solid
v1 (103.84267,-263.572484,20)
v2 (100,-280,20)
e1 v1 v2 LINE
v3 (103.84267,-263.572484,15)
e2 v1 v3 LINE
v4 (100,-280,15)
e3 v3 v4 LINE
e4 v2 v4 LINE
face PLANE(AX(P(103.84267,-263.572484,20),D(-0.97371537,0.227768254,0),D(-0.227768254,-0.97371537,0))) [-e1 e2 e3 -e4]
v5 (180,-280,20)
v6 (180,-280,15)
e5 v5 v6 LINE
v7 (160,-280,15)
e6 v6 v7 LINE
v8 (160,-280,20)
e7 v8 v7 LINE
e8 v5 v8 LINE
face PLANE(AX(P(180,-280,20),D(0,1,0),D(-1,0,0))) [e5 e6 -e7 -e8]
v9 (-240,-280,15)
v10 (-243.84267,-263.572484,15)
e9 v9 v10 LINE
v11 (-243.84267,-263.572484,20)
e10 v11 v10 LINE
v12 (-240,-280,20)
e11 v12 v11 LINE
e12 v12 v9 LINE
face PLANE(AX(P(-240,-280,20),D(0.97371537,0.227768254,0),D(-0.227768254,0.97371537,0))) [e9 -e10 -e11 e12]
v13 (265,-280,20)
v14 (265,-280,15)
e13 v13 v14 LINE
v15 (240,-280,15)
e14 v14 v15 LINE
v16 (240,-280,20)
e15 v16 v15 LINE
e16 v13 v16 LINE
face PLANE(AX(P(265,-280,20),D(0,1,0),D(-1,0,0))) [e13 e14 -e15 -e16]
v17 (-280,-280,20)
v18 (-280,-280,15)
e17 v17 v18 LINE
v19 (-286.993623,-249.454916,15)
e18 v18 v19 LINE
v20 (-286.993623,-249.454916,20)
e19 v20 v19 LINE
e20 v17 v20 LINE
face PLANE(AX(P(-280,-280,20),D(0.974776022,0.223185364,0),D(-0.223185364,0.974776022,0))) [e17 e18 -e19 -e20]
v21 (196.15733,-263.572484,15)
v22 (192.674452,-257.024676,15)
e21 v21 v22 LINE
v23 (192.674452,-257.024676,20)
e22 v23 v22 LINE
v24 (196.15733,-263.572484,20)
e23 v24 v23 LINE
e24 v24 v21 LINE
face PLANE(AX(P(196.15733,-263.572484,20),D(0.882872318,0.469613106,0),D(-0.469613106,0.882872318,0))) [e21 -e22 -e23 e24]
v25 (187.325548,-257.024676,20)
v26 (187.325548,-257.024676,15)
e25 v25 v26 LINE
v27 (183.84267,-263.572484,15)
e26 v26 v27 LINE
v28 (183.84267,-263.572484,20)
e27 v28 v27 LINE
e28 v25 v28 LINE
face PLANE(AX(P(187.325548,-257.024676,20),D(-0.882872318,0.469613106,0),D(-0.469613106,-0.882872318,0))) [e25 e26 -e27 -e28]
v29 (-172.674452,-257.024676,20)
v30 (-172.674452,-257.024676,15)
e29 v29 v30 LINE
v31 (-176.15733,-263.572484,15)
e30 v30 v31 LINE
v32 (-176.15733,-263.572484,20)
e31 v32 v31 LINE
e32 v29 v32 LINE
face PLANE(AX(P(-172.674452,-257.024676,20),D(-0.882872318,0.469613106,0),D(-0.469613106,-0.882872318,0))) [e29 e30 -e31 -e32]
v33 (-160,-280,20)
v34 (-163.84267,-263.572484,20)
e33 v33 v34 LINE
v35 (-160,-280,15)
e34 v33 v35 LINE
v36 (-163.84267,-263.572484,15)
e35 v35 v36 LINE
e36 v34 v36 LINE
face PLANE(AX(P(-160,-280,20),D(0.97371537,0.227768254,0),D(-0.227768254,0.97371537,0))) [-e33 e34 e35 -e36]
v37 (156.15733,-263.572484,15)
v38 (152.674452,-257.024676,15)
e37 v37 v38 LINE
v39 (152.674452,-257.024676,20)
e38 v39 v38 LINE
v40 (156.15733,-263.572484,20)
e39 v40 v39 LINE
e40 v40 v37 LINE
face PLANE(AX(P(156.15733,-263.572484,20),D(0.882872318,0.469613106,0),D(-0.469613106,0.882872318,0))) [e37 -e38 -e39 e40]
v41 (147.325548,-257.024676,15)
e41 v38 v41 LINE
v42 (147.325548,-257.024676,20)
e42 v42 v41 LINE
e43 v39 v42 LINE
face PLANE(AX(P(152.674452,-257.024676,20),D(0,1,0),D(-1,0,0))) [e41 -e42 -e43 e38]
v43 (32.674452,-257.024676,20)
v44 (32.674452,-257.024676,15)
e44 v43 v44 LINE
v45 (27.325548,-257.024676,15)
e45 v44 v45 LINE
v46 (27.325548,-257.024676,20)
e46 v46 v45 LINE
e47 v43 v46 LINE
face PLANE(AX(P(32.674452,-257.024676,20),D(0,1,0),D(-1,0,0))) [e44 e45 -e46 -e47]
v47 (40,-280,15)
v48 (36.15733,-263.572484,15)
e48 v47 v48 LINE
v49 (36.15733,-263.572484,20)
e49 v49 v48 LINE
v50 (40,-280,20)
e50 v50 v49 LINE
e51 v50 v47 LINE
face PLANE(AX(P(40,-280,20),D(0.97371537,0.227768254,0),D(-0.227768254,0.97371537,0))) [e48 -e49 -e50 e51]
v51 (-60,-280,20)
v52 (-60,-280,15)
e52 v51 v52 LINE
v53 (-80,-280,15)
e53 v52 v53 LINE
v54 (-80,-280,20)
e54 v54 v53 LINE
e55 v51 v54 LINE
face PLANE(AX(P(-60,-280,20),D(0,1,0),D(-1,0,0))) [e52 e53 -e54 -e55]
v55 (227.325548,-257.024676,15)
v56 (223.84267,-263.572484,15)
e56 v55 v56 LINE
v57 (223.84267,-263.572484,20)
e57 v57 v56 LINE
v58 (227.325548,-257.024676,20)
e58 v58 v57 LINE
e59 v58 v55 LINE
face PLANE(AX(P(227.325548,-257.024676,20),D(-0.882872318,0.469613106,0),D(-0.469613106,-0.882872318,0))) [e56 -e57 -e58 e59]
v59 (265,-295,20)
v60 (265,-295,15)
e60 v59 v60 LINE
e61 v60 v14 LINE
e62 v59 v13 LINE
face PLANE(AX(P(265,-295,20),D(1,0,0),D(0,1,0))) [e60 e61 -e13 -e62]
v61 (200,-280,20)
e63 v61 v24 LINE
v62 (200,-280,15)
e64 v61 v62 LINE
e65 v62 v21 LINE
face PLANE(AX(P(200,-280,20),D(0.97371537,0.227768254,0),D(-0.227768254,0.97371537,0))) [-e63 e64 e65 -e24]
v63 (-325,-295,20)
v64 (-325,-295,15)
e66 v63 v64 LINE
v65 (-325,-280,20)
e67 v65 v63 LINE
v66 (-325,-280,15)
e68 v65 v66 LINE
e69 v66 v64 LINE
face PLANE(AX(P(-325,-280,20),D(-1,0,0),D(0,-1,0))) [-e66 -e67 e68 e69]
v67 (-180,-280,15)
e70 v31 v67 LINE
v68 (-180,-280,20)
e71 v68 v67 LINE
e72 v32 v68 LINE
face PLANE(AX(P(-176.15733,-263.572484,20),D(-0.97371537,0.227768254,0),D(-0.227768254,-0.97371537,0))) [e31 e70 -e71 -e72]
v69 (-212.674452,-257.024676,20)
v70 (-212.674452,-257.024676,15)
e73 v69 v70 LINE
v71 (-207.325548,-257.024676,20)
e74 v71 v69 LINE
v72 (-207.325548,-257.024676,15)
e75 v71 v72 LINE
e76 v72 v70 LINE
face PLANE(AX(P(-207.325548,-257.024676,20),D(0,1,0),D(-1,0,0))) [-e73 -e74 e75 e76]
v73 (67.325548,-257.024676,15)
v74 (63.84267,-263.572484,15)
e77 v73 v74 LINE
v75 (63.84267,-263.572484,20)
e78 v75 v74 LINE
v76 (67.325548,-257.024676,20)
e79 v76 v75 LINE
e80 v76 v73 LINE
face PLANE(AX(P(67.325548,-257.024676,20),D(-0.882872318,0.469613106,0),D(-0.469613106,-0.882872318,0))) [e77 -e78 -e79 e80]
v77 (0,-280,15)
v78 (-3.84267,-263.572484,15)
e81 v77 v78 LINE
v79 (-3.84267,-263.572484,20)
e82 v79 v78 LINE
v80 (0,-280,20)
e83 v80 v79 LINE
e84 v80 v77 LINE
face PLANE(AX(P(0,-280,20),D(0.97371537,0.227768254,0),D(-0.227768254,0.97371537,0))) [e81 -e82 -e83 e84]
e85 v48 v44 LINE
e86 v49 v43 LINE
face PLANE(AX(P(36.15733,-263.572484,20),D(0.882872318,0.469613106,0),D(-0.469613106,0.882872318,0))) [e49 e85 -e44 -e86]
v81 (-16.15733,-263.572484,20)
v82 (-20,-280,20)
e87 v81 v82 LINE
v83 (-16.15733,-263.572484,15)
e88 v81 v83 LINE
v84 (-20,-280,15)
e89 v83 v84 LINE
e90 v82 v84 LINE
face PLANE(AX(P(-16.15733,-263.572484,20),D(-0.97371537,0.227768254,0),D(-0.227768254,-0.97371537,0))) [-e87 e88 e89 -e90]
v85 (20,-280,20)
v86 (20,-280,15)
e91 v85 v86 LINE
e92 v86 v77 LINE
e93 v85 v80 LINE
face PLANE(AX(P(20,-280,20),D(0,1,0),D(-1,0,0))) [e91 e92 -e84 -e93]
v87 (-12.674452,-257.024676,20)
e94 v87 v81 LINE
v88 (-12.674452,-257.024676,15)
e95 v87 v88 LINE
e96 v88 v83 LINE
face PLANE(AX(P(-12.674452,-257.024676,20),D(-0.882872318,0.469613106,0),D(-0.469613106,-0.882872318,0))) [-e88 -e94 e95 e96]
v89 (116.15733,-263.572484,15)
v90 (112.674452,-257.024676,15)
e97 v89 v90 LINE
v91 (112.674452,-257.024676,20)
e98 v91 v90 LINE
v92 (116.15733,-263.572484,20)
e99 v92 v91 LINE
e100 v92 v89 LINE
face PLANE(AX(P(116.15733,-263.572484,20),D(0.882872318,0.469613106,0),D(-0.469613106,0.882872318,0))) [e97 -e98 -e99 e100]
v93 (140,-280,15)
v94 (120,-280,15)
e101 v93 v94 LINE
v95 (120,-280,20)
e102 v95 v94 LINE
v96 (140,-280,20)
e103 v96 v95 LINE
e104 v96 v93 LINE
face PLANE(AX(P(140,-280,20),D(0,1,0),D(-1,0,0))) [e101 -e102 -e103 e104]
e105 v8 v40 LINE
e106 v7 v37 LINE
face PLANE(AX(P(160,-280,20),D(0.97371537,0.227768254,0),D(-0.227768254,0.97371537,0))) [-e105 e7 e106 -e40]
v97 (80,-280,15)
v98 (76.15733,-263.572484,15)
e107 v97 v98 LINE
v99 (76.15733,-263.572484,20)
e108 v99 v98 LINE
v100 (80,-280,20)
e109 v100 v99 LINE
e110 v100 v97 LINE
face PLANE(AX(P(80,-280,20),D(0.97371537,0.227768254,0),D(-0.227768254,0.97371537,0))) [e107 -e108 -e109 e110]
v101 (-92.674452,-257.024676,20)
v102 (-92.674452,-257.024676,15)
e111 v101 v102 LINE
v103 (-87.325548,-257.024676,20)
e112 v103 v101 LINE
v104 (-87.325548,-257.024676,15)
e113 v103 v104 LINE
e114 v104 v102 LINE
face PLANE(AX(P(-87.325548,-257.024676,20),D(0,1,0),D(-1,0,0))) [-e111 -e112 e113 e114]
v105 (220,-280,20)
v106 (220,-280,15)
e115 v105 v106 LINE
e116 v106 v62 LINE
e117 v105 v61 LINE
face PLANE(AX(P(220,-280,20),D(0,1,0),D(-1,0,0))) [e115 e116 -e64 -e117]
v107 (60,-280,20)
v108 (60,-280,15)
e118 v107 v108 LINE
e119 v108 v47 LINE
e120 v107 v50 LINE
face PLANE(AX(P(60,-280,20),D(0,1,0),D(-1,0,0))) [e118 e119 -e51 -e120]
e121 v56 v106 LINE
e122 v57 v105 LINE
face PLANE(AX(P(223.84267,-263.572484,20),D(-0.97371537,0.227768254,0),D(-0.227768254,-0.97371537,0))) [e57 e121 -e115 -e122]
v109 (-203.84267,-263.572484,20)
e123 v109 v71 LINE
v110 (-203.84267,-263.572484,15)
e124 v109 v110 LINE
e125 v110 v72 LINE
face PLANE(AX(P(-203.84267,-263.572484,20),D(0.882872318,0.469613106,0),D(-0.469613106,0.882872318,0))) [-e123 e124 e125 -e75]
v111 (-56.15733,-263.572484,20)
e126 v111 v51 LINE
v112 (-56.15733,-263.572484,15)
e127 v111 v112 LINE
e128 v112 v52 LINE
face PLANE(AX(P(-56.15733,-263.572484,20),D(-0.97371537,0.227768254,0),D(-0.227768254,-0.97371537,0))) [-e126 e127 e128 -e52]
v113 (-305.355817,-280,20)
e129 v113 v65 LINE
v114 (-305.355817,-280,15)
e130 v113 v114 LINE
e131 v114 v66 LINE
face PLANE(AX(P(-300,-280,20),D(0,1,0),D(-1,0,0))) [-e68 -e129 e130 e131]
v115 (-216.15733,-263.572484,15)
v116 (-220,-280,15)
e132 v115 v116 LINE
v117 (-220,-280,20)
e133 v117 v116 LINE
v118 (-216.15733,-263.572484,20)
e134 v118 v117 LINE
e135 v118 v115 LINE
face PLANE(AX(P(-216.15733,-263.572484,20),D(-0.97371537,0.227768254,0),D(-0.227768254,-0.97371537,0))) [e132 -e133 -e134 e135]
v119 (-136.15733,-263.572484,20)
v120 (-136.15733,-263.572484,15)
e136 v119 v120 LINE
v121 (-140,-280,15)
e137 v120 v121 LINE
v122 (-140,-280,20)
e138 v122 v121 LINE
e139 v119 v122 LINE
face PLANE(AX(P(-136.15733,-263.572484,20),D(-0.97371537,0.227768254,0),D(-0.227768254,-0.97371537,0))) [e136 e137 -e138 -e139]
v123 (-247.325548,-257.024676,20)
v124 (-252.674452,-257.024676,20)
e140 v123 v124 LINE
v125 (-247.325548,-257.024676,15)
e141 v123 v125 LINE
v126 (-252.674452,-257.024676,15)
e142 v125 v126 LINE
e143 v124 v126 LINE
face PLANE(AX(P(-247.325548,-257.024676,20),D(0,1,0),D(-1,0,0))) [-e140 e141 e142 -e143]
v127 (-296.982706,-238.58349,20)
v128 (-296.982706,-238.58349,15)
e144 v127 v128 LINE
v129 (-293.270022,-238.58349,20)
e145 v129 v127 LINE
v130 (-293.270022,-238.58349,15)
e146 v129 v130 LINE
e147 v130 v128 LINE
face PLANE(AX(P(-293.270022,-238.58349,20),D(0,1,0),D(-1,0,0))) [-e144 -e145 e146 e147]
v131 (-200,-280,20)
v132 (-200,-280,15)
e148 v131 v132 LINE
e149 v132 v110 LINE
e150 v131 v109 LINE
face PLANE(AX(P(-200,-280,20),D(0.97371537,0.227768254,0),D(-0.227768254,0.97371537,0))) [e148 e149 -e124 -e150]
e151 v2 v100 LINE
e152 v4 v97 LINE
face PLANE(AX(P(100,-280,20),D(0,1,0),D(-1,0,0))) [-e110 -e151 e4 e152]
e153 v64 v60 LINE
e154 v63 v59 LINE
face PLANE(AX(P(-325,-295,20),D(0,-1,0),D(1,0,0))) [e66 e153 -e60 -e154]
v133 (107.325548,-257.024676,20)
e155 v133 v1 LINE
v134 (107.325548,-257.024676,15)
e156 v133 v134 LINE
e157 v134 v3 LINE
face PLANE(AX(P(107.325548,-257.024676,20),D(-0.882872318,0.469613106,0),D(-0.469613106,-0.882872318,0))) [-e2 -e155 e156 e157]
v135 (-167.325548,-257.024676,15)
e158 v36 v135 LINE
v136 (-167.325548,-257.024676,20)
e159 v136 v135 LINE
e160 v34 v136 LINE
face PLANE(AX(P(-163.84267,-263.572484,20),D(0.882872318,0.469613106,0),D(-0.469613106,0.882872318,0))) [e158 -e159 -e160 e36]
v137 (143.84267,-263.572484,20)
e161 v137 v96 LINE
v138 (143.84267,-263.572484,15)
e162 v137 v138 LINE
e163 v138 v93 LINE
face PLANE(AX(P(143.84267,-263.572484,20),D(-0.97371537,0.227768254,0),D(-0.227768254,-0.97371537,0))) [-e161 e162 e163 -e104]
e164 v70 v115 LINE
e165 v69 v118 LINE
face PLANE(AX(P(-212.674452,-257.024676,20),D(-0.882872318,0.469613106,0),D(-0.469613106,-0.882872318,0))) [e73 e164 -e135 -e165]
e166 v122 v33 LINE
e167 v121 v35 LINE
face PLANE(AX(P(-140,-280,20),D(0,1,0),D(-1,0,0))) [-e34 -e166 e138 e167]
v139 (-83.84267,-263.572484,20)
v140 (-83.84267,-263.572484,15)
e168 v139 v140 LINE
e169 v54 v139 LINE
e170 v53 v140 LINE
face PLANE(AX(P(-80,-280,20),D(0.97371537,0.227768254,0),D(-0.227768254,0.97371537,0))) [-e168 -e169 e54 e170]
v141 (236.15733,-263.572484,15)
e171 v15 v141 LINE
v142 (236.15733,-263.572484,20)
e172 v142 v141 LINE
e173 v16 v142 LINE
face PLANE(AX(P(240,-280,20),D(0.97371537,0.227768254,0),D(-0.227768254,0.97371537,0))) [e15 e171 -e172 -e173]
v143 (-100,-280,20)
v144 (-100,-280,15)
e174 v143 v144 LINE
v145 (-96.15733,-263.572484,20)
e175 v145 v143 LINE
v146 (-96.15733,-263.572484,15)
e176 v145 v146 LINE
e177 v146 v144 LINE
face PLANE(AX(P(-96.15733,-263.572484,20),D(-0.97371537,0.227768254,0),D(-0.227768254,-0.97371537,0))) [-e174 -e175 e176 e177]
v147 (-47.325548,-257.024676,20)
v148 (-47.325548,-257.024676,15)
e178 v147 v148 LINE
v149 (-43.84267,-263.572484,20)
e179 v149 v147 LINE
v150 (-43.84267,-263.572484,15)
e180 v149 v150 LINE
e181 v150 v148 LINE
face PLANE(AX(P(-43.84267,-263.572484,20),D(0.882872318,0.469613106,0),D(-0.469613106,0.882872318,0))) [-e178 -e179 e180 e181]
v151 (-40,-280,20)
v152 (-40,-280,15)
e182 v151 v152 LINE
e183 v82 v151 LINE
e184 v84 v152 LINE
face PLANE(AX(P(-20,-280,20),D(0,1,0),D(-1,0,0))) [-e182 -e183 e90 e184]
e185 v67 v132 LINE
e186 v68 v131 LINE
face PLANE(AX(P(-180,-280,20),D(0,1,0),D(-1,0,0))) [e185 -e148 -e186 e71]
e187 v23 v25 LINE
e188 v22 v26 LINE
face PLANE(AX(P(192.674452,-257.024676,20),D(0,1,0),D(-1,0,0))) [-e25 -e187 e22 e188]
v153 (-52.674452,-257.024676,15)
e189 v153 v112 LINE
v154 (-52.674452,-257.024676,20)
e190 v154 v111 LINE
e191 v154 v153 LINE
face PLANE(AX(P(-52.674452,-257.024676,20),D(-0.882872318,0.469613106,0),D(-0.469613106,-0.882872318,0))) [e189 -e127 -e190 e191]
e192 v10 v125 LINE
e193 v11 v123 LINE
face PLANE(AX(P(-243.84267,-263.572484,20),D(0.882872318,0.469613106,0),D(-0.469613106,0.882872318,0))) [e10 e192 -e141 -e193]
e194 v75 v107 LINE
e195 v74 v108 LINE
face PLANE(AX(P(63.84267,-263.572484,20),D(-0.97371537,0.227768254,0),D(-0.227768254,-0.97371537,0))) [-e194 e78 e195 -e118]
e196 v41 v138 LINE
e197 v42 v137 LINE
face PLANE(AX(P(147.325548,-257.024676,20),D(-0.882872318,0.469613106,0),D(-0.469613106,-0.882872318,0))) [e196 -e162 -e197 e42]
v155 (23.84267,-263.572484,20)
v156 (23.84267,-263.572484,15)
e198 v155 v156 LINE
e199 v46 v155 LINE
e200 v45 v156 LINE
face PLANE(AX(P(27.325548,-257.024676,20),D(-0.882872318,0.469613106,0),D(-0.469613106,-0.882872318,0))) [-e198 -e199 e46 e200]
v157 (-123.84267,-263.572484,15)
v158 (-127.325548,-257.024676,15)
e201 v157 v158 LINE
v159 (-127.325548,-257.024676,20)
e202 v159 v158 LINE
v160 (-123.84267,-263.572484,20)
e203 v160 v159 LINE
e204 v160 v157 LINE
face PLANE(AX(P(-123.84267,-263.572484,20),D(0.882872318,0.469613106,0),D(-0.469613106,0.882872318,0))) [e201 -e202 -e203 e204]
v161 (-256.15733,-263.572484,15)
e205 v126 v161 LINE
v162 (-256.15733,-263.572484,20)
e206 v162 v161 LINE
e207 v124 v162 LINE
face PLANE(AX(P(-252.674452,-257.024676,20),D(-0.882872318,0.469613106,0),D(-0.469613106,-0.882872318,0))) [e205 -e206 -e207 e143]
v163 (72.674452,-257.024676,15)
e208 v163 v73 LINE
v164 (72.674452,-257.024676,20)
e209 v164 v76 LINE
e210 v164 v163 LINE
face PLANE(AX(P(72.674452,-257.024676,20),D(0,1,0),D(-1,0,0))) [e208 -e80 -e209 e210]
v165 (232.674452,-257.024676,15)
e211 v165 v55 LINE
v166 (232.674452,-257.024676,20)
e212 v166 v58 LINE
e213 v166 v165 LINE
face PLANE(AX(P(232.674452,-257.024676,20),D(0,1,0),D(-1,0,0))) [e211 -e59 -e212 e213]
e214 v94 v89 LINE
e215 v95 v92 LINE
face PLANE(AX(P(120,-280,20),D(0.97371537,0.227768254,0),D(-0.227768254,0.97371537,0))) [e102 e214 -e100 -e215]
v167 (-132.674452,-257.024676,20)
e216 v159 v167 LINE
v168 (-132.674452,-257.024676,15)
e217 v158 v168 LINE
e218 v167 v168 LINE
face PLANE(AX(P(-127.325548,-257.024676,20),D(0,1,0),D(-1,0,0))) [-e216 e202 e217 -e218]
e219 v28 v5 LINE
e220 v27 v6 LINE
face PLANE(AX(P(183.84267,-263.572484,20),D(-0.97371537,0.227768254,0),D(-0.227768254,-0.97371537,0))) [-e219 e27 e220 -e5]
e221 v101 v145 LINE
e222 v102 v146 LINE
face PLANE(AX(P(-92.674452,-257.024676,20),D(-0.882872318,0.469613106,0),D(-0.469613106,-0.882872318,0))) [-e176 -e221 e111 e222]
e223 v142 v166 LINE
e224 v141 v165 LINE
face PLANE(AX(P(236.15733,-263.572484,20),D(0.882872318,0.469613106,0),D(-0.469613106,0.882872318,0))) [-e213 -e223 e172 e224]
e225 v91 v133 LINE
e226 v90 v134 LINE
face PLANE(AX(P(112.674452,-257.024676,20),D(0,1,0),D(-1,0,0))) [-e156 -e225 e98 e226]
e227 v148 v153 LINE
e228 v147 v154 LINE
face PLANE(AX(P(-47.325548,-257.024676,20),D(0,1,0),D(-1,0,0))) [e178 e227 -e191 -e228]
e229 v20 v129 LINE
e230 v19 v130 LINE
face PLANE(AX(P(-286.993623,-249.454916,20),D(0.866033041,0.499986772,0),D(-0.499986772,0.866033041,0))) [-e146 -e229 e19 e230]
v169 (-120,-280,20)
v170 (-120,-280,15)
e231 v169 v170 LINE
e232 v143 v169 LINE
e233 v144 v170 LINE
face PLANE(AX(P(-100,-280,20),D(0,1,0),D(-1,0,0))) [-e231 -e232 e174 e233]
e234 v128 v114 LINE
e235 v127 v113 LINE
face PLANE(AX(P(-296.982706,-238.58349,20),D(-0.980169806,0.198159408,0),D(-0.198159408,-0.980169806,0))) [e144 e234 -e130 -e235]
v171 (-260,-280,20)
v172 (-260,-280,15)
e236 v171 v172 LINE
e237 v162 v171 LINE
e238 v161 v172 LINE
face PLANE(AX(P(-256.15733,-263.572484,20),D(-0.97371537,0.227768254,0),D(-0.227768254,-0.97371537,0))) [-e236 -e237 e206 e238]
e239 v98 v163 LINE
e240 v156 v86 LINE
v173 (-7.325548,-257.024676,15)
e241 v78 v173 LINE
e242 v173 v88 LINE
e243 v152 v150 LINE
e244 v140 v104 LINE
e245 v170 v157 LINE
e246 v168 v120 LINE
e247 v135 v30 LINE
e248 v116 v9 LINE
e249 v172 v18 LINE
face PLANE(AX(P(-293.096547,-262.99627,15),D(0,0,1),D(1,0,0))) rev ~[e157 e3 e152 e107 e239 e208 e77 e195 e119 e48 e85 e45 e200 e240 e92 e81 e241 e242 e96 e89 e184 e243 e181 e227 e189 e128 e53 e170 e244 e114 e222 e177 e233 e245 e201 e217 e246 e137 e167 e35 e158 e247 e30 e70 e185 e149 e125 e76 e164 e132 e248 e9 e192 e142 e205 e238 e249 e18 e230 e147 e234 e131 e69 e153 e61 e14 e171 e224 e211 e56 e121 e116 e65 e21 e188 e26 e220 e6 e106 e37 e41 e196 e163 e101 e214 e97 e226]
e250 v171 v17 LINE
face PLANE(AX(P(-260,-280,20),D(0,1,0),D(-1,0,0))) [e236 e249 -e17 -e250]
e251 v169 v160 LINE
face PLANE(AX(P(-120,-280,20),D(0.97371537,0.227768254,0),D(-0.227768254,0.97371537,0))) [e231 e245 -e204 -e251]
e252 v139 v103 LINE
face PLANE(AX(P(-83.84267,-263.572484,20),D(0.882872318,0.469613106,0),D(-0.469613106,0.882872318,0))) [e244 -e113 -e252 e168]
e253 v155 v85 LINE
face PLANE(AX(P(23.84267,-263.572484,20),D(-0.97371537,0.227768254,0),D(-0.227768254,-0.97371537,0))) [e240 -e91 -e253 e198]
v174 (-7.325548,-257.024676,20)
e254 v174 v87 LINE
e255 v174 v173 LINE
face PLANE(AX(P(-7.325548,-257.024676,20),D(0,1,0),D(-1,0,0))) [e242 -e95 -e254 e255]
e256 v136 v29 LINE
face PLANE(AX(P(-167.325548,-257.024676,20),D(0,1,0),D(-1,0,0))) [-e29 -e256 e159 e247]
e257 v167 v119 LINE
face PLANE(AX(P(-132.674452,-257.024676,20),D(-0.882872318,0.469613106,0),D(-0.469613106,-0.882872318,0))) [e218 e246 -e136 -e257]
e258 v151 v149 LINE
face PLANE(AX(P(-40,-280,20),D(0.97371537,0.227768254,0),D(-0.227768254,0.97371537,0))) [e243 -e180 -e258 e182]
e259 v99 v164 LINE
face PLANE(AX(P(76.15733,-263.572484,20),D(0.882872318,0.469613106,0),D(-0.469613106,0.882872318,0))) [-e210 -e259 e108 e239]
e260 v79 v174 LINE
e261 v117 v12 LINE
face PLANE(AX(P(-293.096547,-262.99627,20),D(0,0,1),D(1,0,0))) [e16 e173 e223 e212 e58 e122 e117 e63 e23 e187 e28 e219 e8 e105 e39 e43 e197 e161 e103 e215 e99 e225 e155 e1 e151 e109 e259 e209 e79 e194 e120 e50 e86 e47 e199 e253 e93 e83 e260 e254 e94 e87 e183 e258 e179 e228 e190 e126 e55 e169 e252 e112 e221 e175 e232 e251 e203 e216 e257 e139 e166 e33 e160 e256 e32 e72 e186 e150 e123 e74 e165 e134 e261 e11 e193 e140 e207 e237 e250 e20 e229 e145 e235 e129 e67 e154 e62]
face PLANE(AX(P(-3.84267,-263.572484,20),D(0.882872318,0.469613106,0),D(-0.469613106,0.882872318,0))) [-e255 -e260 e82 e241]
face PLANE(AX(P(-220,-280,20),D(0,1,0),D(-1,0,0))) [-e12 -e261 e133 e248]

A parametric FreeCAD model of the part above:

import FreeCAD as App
import Part
import Sketcher
from FreeCAD import Vector
Q = App.Units.Quantity


def add_polygon(sketch, points):
    """Adds a closed chain of lines whose ends are joined by coincident constraints."""
    first, n = sketch.GeometryCount, len(points)
    for a, b in zip(points, points[1:] + points[:1]):
        sketch.addGeometry(Part.LineSegment(App.Vector(*a, 0), App.Vector(*b, 0)), False)
    for i in range(n):
        sketch.addConstraint(Sketcher.Constraint("Coincident", first + i, 2, first + (i + 1) % n, 1))

doc = App.newDocument("Part")
body = doc.addObject("PartDesign::Body", "Body")

sketch1 = body.newObject("Sketcher::SketchObject", "Sketch")
sketch1.AttachmentSupport = (doc.getObject("XY_Plane"), [""])
sketch1.MapMode = "FlatFace"
add_polygon(sketch1, [(-375, -280), (-375, -330), (375, -330), (375, -280)])
sketch1.addConstraint(Sketcher.Constraint("Vertical", 0))
sketch1.addConstraint(Sketcher.Constraint("Horizontal", 1))
sketch1.addConstraint(Sketcher.Constraint("Vertical", 2))
sketch1.addConstraint(Sketcher.Constraint("Horizontal", 3))
sketch1.addConstraint(Sketcher.Constraint("DistanceX", 1, 1, 1, 2, Q("750 mm")))
sketch1.addConstraint(Sketcher.Constraint("DistanceY", 0, 2, 0, 1, Q("50 mm")))
sketch1.addConstraint(Sketcher.Constraint("DistanceX", 0, 2, -1, 1, Q("375 mm")))
sketch1.addConstraint(Sketcher.Constraint("DistanceY", 0, 2, -1, 1, Q("330 mm")))
pad1 = body.newObject("PartDesign::Pad", "Pad")
pad1.Profile = sketch1
pad1.Length = 20
body2 = doc.addObject("PartDesign::Body", "Body001")

sketch2 = body2.newObject("Sketcher::SketchObject", "Sketch001")
sketch2.AttachmentSupport = (doc.getObject("XY_Plane001"), [""])
sketch2.MapMode = "FlatFace"
add_polygon(sketch2, [(-375, 330), (-375, 280), (375, 280), (375, 330)])
sketch2.addConstraint(Sketcher.Constraint("Vertical", 0))
sketch2.addConstraint(Sketcher.Constraint("Horizontal", 1))
sketch2.addConstraint(Sketcher.Constraint("Vertical", 2))
sketch2.addConstraint(Sketcher.Constraint("Horizontal", 3))
sketch2.addConstraint(Sketcher.Constraint("DistanceX", 1, 1, 1, 2, Q("750 mm")))
sketch2.addConstraint(Sketcher.Constraint("DistanceY", 0, 2, 0, 1, Q("50 mm")))
sketch2.addConstraint(Sketcher.Constraint("DistanceX", 0, 2, -1, 1, Q("375 mm")))
sketch2.addConstraint(Sketcher.Constraint("DistanceY", -1, 1, 0, 2, Q("280 mm")))
pad2 = body2.newObject("PartDesign::Pad", "Pad001")
pad2.Profile = sketch2
pad2.Length = 20
body3 = doc.addObject("PartDesign::Body", "Body002")

sketch3 = body3.newObject("Sketcher::SketchObject", "Sketch002")
sketch3.AttachmentSupport = (doc.getObject("XY_Plane002"), [""])
sketch3.MapMode = "FlatFace"
sketch3.AttachmentOffset = App.Placement(Vector(0, 0, 20), App.Rotation())
add_polygon(sketch3, [(-362.106252, 330), (-362.106252, -330), (-312.106252, -330), (-312.106252, 330)])
sketch3.addConstraint(Sketcher.Constraint("Vertical", 0))
sketch3.addConstraint(Sketcher.Constraint("Horizontal", 1))
sketch3.addConstraint(Sketcher.Constraint("Vertical", 2))
sketch3.addConstraint(Sketcher.Constraint("Horizontal", 3))
sketch3.addConstraint(Sketcher.Constraint("DistanceX", 1, 1, 1, 2, Q("50 mm")))
sketch3.addConstraint(Sketcher.Constraint("DistanceY", 0, 2, 0, 1, Q("660 mm")))
sketch3.addConstraint(Sketcher.Constraint("DistanceY", 0, 2, -1, 1, Q("330 mm")))
sketch3.addConstraint(Sketcher.Constraint("DistanceX", 0, 2, -1, 1, Q("362.106252 mm")))
pad3 = body3.newObject("PartDesign::Pad", "Pad002")
pad3.Profile = sketch3
pad3.Length = 10
body4 = doc.addObject("PartDesign::Body", "Body003")

sketch4 = body4.newObject("Sketcher::SketchObject", "Sketch003")
sketch4.AttachmentSupport = (doc.getObject("XY_Plane003"), [""])
sketch4.MapMode = "FlatFace"
sketch4.AttachmentOffset = App.Placement(Vector(0, 0, 20), App.Rotation())
add_polygon(sketch4, [(312.106252, 330), (312.106252, -330), (362.106252, -330), (362.106252, 330)])
sketch4.addConstraint(Sketcher.Constraint("Vertical", 0))
sketch4.addConstraint(Sketcher.Constraint("Horizontal", 1))
sketch4.addConstraint(Sketcher.Constraint("Vertical", 2))
sketch4.addConstraint(Sketcher.Constraint("Horizontal", 3))
sketch4.addConstraint(Sketcher.Constraint("DistanceX", 1, 1, 1, 2, Q("50 mm")))
sketch4.addConstraint(Sketcher.Constraint("DistanceY", 0, 2, 0, 1, Q("660 mm")))
sketch4.addConstraint(Sketcher.Constraint("DistanceY", 0, 2, -1, 1, Q("330 mm")))
sketch4.addConstraint(Sketcher.Constraint("DistanceX", -1, 1, 0, 2, Q("312.106252 mm")))
pad4 = body4.newObject("PartDesign::Pad", "Pad003")
pad4.Profile = sketch4
pad4.Length = 10
body5 = doc.addObject("PartDesign::Body", "Body004")

sketch5 = body5.newObject("Sketcher::SketchObject", "Sketch004")
sketch5.AttachmentSupport = (doc.getObject("XY_Plane004"), [""])
sketch5.MapMode = "FlatFace"
sketch5.AttachmentOffset = App.Placement(Vector(0, 0, 20), App.Rotation())
add_polygon(sketch5, [(-155.332723, 330), (-155.332723, -330), (-105.332723, -330), (-105.332723, 330)])
sketch5.addConstraint(Sketcher.Constraint("Vertical", 0))
sketch5.addConstraint(Sketcher.Constraint("Horizontal", 1))
sketch5.addConstraint(Sketcher.Constraint("Vertical", 2))
sketch5.addConstraint(Sketcher.Constraint("Horizontal", 3))
sketch5.addConstraint(Sketcher.Constraint("DistanceX", 1, 1, 1, 2, Q("50 mm")))
sketch5.addConstraint(Sketcher.Constraint("DistanceY", 0, 2, 0, 1, Q("660 mm")))
sketch5.addConstraint(Sketcher.Constraint("DistanceY", 0, 2, -1, 1, Q("330 mm")))
sketch5.addConstraint(Sketcher.Constraint("DistanceX", 0, 2, -1, 1, Q("155.332723 mm")))
pad5 = body5.newObject("PartDesign::Pad", "Pad004")
pad5.Profile = sketch5
pad5.Length = 10
body6 = doc.addObject("PartDesign::Body", "Body005")

sketch6 = body6.newObject("Sketcher::SketchObject", "Sketch005")
sketch6.AttachmentSupport = (doc.getObject("XY_Plane005"), [""])
sketch6.MapMode = "FlatFace"
sketch6.AttachmentOffset = App.Placement(Vector(0, 0, 20), App.Rotation())
add_polygon(sketch6, [(105.332723, 330), (105.332723, -330), (155.332723, -330), (155.332723, 330)])
sketch6.addConstraint(Sketcher.Constraint("Vertical", 0))
sketch6.addConstraint(Sketcher.Constraint("Horizontal", 1))
sketch6.addConstraint(Sketcher.Constraint("Vertical", 2))
sketch6.addConstraint(Sketcher.Constraint("Horizontal", 3))
sketch6.addConstraint(Sketcher.Constraint("DistanceX", 1, 1, 1, 2, Q("50 mm")))
sketch6.addConstraint(Sketcher.Constraint("DistanceY", 0, 2, 0, 1, Q("660 mm")))
sketch6.addConstraint(Sketcher.Constraint("DistanceY", 0, 2, -1, 1, Q("330 mm")))
sketch6.addConstraint(Sketcher.Constraint("DistanceX", -1, 1, 0, 2, Q("105.332723 mm")))
pad6 = body6.newObject("PartDesign::Pad", "Pad005")
pad6.Profile = sketch6
pad6.Length = 10
body7 = doc.addObject("PartDesign::Body", "Body006")

sketch7 = body7.newObject("Sketcher::SketchObject", "Sketch006")
sketch7.AttachmentSupport = (doc.getObject("XY_Plane006"), [""])
sketch7.MapMode = "FlatFace"
sketch7.AttachmentOffset = App.Placement(Vector(0, 0, 20), App.Rotation())
add_polygon(sketch7, [(-296.15733, -263.572484), (-300, -280), (-325, -280), (-325, -295), (265, -295), (265, -280), (240, -280), (236.15733, -263.572484), (232.674452, -257.024676), (227.325548, -257.024676), (223.84267, -263.572484), (220, -280), (200, -280), (196.15733, -263.572484), (192.674452, -257.024676), (187.325548, -257.024676), (183.84267, -263.572484), (180, -280), (160, -280), (156.15733, -263.572484), (152.674452, -257.024676), (147.325548, -257.024676), (143.84267, -263.572484), (140, -280), (120, -280), (116.15733, -263.572484), (112.674452, -257.024676), (107.325548, -257.024676), (103.84267, -263.572484), (100, -280), (80, -280), (76.15733, -263.572484), (72.674452, -257.024676), (67.325548, -257.024676), (63.84267, -263.572484), (60, -280), (40, -280), (36.15733, -263.572484), (32.674452, -257.024676), (27.325548, -257.024676), (23.84267, -263.572484), (20, -280), (0, -280), (-3.84267, -263.572484), (-7.325548, -257.024676), (-12.674452, -257.024676), (-16.15733, -263.572484), (-20, -280), (-40, -280), (-43.84267, -263.572484), (-47.325548, -257.024676), (-52.674452, -257.024676), (-56.15733, -263.572484), (-60, -280), (-80, -280), (-83.84267, -263.572484), (-87.325548, -257.024676), (-92.674452, -257.024676), (-96.15733, -263.572484), (-100, -280), (-120, -280), (-123.84267, -263.572484), (-127.325548, -257.024676), (-132.674452, -257.024676), (-136.15733, -263.572484), (-140, -280), (-160, -280), (-163.84267, -263.572484), (-167.325548, -257.024676), (-172.674452, -257.024676), (-176.15733, -263.572484), (-180, -280), (-200, -280), (-203.84267, -263.572484), (-207.325548, -257.024676), (-212.674452, -257.024676), (-216.15733, -263.572484), (-220, -280), (-240, -280), (-243.84267, -263.572484), (-247.325548, -257.024676), (-252.674452, -257.024676), (-256.15733, -263.572484), (-260, -280), (-280, -280), (-283.84267, -263.572484), (-287.325548, -257.024676), (-292.674452, -257.024676)])
sketch7.addConstraint(Sketcher.Constraint("Horizontal", 1))
sketch7.addConstraint(Sketcher.Constraint("Vertical", 2))
sketch7.addConstraint(Sketcher.Constraint("Horizontal", 3))
sketch7.addConstraint(Sketcher.Constraint("Vertical", 4))
sketch7.addConstraint(Sketcher.Constraint("Horizontal", 5))
sketch7.addConstraint(Sketcher.Constraint("Horizontal", 8))
sketch7.addConstraint(Sketcher.Constraint("Horizontal", 11))
sketch7.addConstraint(Sketcher.Constraint("Horizontal", 14))
sketch7.addConstraint(Sketcher.Constraint("Horizontal", 17))
sketch7.addConstraint(Sketcher.Constraint("Horizontal", 20))
sketch7.addConstraint(Sketcher.Constraint("Horizontal", 23))
sketch7.addConstraint(Sketcher.Constraint("Horizontal", 26))
sketch7.addConstraint(Sketcher.Constraint("Horizontal", 29))
sketch7.addConstraint(Sketcher.Constraint("Horizontal", 32))
sketch7.addConstraint(Sketcher.Constraint("Horizontal", 35))
sketch7.addConstraint(Sketcher.Constraint("Horizontal", 38))
sketch7.addConstraint(Sketcher.Constraint("Horizontal", 41))
sketch7.addConstraint(Sketcher.Constraint("Horizontal", 44))
sketch7.addConstraint(Sketcher.Constraint("Horizontal", 47))
sketch7.addConstraint(Sketcher.Constraint("Horizontal", 50))
sketch7.addConstraint(Sketcher.Constraint("Horizontal", 53))
sketch7.addConstraint(Sketcher.Constraint("Horizontal", 56))
sketch7.addConstraint(Sketcher.Constraint("Horizontal", 59))
sketch7.addConstraint(Sketcher.Constraint("Horizontal", 62))
sketch7.addConstraint(Sketcher.Constraint("Horizontal", 65))
sketch7.addConstraint(Sketcher.Constraint("Horizontal", 68))
sketch7.addConstraint(Sketcher.Constraint("Horizontal", 71))
sketch7.addConstraint(Sketcher.Constraint("Horizontal", 74))
sketch7.addConstraint(Sketcher.Constraint("Horizontal", 77))
sketch7.addConstraint(Sketcher.Constraint("Horizontal", 80))
sketch7.addConstraint(Sketcher.Constraint("Horizontal", 83))
sketch7.addConstraint(Sketcher.Constraint("Horizontal", 86))
sketch7.addConstraint(Sketcher.Constraint("Symmetric", 40, 2, 46, 2, -2))
sketch7.addConstraint(Sketcher.Constraint("Symmetric", 35, 2, 47, 2, -2))
sketch7.addConstraint(Sketcher.Constraint("Symmetric", 34, 2, 52, 2, -2))
sketch7.addConstraint(Sketcher.Constraint("Symmetric", 29, 2, 53, 2, -2))
sketch7.addConstraint(Sketcher.Constraint("Symmetric", 28, 2, 58, 2, -2))
sketch7.addConstraint(Sketcher.Constraint("Symmetric", 23, 2, 59, 2, -2))
sketch7.addConstraint(Sketcher.Constraint("Symmetric", 22, 2, 64, 2, -2))
sketch7.addConstraint(Sketcher.Constraint("Symmetric", 17, 2, 65, 2, -2))
sketch7.addConstraint(Sketcher.Constraint("Symmetric", 16, 2, 70, 2, -2))
sketch7.addConstraint(Sketcher.Constraint("Symmetric", 11, 2, 71, 2, -2))
sketch7.addConstraint(Sketcher.Constraint("Symmetric", 10, 2, 76, 2, -2))
sketch7.addConstraint(Sketcher.Constraint("Symmetric", 5, 2, 77, 2, -2))
sketch7.addConstraint(Sketcher.Constraint("PointOnObject", 41, 2, -2))
sketch7.addConstraint(Sketcher.Constraint("Parallel", 0, 10))
sketch7.addConstraint(Sketcher.Constraint("Parallel", 6, 12))
sketch7.addConstraint(Sketcher.Constraint("Parallel", 7, 13))
sketch7.addConstraint(Sketcher.Constraint("Parallel", 9, 15))
sketch7.addConstraint(Sketcher.Constraint("Parallel", 10, 16))
sketch7.addConstraint(Sketcher.Constraint("Parallel", 12, 18))
sketch7.addConstraint(Sketcher.Constraint("Parallel", 13, 19))
sketch7.addConstraint(Sketcher.Constraint("Parallel", 15, 21))
sketch7.addConstraint(Sketcher.Constraint("Parallel", 16, 22))
sketch7.addConstraint(Sketcher.Constraint("Parallel", 18, 24))
sketch7.addConstraint(Sketcher.Constraint("Parallel", 19, 25))
sketch7.addConstraint(Sketcher.Constraint("Parallel", 21, 27))
sketch7.addConstraint(Sketcher.Constraint("Parallel", 22, 28))
sketch7.addConstraint(Sketcher.Constraint("Parallel", 24, 30))
sketch7.addConstraint(Sketcher.Constraint("Parallel", 25, 31))
sketch7.addConstraint(Sketcher.Constraint("Parallel", 27, 33))
sketch7.addConstraint(Sketcher.Constraint("Parallel", 28, 34))
sketch7.addConstraint(Sketcher.Constraint("Parallel", 30, 36))
sketch7.addConstraint(Sketcher.Constraint("Parallel", 31, 37))
sketch7.addConstraint(Sketcher.Constraint("Parallel", 33, 39))
sketch7.addConstraint(Sketcher.Constraint("Parallel", 34, 40))
sketch7.addConstraint(Sketcher.Constraint("Parallel", 36, 42))
sketch7.addConstraint(Sketcher.Constraint("Parallel", 37, 43))
sketch7.addConstraint(Sketcher.Constraint("Parallel", 39, 45))
sketch7.addConstraint(Sketcher.Constraint("Parallel", 40, 46))
sketch7.addConstraint(Sketcher.Constraint("Parallel", 42, 48))
sketch7.addConstraint(Sketcher.Constraint("Parallel", 43, 49))
sketch7.addConstraint(Sketcher.Constraint("Parallel", 45, 51))
sketch7.addConstraint(Sketcher.Constraint("Parallel", 46, 52))
sketch7.addConstraint(Sketcher.Constraint("Parallel", 48, 54))
sketch7.addConstraint(Sketcher.Constraint("Parallel", 49, 55))
sketch7.addConstraint(Sketcher.Constraint("Parallel", 51, 57))
sketch7.addConstraint(Sketcher.Constraint("Parallel", 52, 58))
sketch7.addConstraint(Sketcher.Constraint("Parallel", 54, 60))
sketch7.addConstraint(Sketcher.Constraint("Parallel", 55, 61))
sketch7.addConstraint(Sketcher.Constraint("Parallel", 57, 63))
sketch7.addConstraint(Sketcher.Constraint("Parallel", 58, 64))
sketch7.addConstraint(Sketcher.Constraint("Parallel", 60, 66))
sketch7.addConstraint(Sketcher.Constraint("Parallel", 61, 67))
sketch7.addConstraint(Sketcher.Constraint("Parallel", 63, 69))
sketch7.addConstraint(Sketcher.Constraint("Parallel", 64, 70))
sketch7.addConstraint(Sketcher.Constraint("Parallel", 66, 72))
sketch7.addConstraint(Sketcher.Constraint("Parallel", 67, 73))
sketch7.addConstraint(Sketcher.Constraint("Parallel", 69, 75))
sketch7.addConstraint(Sketcher.Constraint("Parallel", 70, 76))
sketch7.addConstraint(Sketcher.Constraint("Parallel", 72, 78))
sketch7.addConstraint(Sketcher.Constraint("Parallel", 73, 79))
sketch7.addConstraint(Sketcher.Constraint("Parallel", 75, 81))
sketch7.addConstraint(Sketcher.Constraint("Parallel", 76, 82))
sketch7.addConstraint(Sketcher.Constraint("Parallel", 78, 84))
sketch7.addConstraint(Sketcher.Constraint("Parallel", 79, 85))
sketch7.addConstraint(Sketcher.Constraint("Parallel", 81, 87))
sketch7.addConstraint(Sketcher.Constraint("Horizontal", 1, 2, 4, 2))
sketch7.addConstraint(Sketcher.Constraint("Horizontal", 6, 2, 9, 2))
sketch7.addConstraint(Sketcher.Constraint("Horizontal", 9, 2, 12, 2))
sketch7.addConstraint(Sketcher.Constraint("Horizontal", 8, 2, 13, 2))
sketch7.addConstraint(Sketcher.Constraint("Horizontal", 12, 2, 15, 2))
sketch7.addConstraint(Sketcher.Constraint("Horizontal", 15, 2, 18, 2))
sketch7.addConstraint(Sketcher.Constraint("Horizontal", 14, 2, 19, 2))
sketch7.addConstraint(Sketcher.Constraint("Horizontal", 18, 2, 21, 2))
sketch7.addConstraint(Sketcher.Constraint("Horizontal", 21, 2, 24, 2))
sketch7.addConstraint(Sketcher.Constraint("Horizontal", 20, 2, 25, 2))
sketch7.addConstraint(Sketcher.Constraint("Horizontal", 24, 2, 27, 2))
sketch7.addConstraint(Sketcher.Constraint("Horizontal", 27, 2, 30, 2))
sketch7.addConstraint(Sketcher.Constraint("Horizontal", 26, 2, 31, 2))
sketch7.addConstraint(Sketcher.Constraint("Horizontal", 30, 2, 33, 2))
sketch7.addConstraint(Sketcher.Constraint("Horizontal", 33, 2, 36, 2))
sketch7.addConstraint(Sketcher.Constraint("Horizontal", 32, 2, 37, 2))
sketch7.addConstraint(Sketcher.Constraint("Horizontal", 36, 2, 39, 2))
sketch7.addConstraint(Sketcher.Constraint("Horizontal", 39, 2, 42, 2))
sketch7.addConstraint(Sketcher.Constraint("Horizontal", 38, 2, 43, 2))
sketch7.addConstraint(Sketcher.Constraint("Horizontal", 42, 2, 45, 2))
sketch7.addConstraint(Sketcher.Constraint("Horizontal", 45, 2, 48, 2))
sketch7.addConstraint(Sketcher.Constraint("Horizontal", 44, 2, 49, 2))
sketch7.addConstraint(Sketcher.Constraint("Horizontal", 48, 2, 51, 2))
sketch7.addConstraint(Sketcher.Constraint("Horizontal", 51, 2, 54, 2))
sketch7.addConstraint(Sketcher.Constraint("Horizontal", 50, 2, 55, 2))
sketch7.addConstraint(Sketcher.Constraint("Horizontal", 54, 2, 57, 2))
sketch7.addConstraint(Sketcher.Constraint("Horizontal", 57, 2, 60, 2))
sketch7.addConstraint(Sketcher.Constraint("Horizontal", 56, 2, 61, 2))
sketch7.addConstraint(Sketcher.Constraint("Horizontal", 60, 2, 63, 2))
sketch7.addConstraint(Sketcher.Constraint("Horizontal", 63, 2, 66, 2))
sketch7.addConstraint(Sketcher.Constraint("Horizontal", 62, 2, 67, 2))
sketch7.addConstraint(Sketcher.Constraint("Horizontal", 66, 2, 69, 2))
sketch7.addConstraint(Sketcher.Constraint("Horizontal", 69, 2, 72, 2))
sketch7.addConstraint(Sketcher.Constraint("Horizontal", 68, 2, 73, 2))
sketch7.addConstraint(Sketcher.Constraint("Horizontal", 72, 2, 75, 2))
sketch7.addConstraint(Sketcher.Constraint("Horizontal", 75, 2, 78, 2))
sketch7.addConstraint(Sketcher.Constraint("Horizontal", 74, 2, 79, 2))
sketch7.addConstraint(Sketcher.Constraint("Horizontal", 78, 2, 81, 2))
sketch7.addConstraint(Sketcher.Constraint("Horizontal", 77, 2, 82, 2))
sketch7.addConstraint(Sketcher.Constraint("Horizontal", 81, 2, 84, 2))
sketch7.addConstraint(Sketcher.Constraint("Horizontal", 80, 2, 85, 2))
sketch7.addConstraint(Sketcher.Constraint("Horizontal", 84, 2, 87, 2))
sketch7.addConstraint(Sketcher.Constraint("Equal", 1, 5))
sketch7.addConstraint(Sketcher.Constraint("Equal", 8, 14))
sketch7.addConstraint(Sketcher.Constraint("Equal", 11, 17))
sketch7.addConstraint(Sketcher.Constraint("Equal", 14, 20))
sketch7.addConstraint(Sketcher.Constraint("Equal", 17, 23))
sketch7.addConstraint(Sketcher.Constraint("Equal", 20, 26))
sketch7.addConstraint(Sketcher.Constraint("Equal", 23, 29))
sketch7.addConstraint(Sketcher.Constraint("Equal", 26, 32))
sketch7.addConstraint(Sketcher.Constraint("Equal", 29, 35))
sketch7.addConstraint(Sketcher.Constraint("Equal", 32, 38))
sketch7.addConstraint(Sketcher.Constraint("Equal", 35, 41))
sketch7.addConstraint(Sketcher.Constraint("Equal", 38, 44))
sketch7.addConstraint(Sketcher.Constraint("Equal", 74, 80))
sketch7.addConstraint(Sketcher.Constraint("Equal", 77, 83))
sketch7.addConstraint(Sketcher.Constraint("Equal", 80, 86))
sketch7.addConstraint(Sketcher.Constraint("Equal", 0, 6))
sketch7.addConstraint(Sketcher.Constraint("Equal", 7, 9))
sketch7.addConstraint(Sketcher.Constraint("DistanceX", 1, 2, 1, 1, Q("25 mm")))
sketch7.addConstraint(Sketcher.Constraint("DistanceX", 3, 1, 3, 2, Q("590 mm")))
sketch7.addConstraint(Sketcher.Constraint("DistanceY", 2, 2, 2, 1, Q("15 mm")))
sketch7.addConstraint(Sketcher.Constraint("DistanceY", 0, 2, -1, 1, Q("280 mm")))
sketch7.addConstraint(Sketcher.Constraint("DistanceX", 8, 2, 8, 1, Q("5.348904 mm")))
sketch7.addConstraint(Sketcher.Constraint("DistanceX", -1, 1, 6, 2, Q("236.15733 mm")))
sketch7.addConstraint(Sketcher.Constraint("Distance", 0, Q("16.870963 mm")))
sketch7.addConstraint(Sketcher.Constraint("Distance", 7, Q("7.416484 mm")))
pad7 = body7.newObject("PartDesign::Pad", "Pad006")
pad7.Profile = sketch7
pad7.Length = 5
pad7.Reversed = True

sketch8 = body7.newObject("Sketcher::SketchObject", "Sketch007")
sketch8.AttachmentSupport = (doc.getObject("XY_Plane006"), [""])
sketch8.MapMode = "FlatFace"
sketch8.AttachmentOffset = App.Placement(Vector(0, 0, 20), App.Rotation())
add_polygon(sketch8, [(-280, -280), (-286.993623, -249.454916), (-293.270022, -238.58349), (-296.982706, -238.58349), (-305.355817, -280)])
sketch8.addConstraint(Sketcher.Constraint("Horizontal", 2))
sketch8.addConstraint(Sketcher.Constraint("Horizontal", 4))
sketch8.addConstraint(Sketcher.Constraint("DistanceY", 3, 2, -1, 1, Q("280 mm")))
sketch8.addConstraint(Sketcher.Constraint("DistanceX", 4, 2, -1, 1, Q("280 mm")))
sketch8.addConstraint(Sketcher.Constraint("DistanceX", 1, 2, 0, 2, Q("6.276399 mm")))
sketch8.addConstraint(Sketcher.Constraint("Distance", 0, Q("31.33549 mm")))
sketch8.addConstraint(Sketcher.Constraint("Distance", 1, Q("12.55313 mm")))
sketch8.addConstraint(Sketcher.Constraint("DistanceX", 2, 2, 2, 1, Q("3.712684 mm")))
sketch8.addConstraint(Sketcher.Constraint("DistanceX", 4, 1, 4, 2, Q("25.355817 mm")))
sketch8.addConstraint(Sketcher.Constraint("DistanceX", 1, 2, -1, 1, Q("293.270022 mm")))
pad8 = body7.newObject("PartDesign::Pad", "Pad007")
pad8.Profile = sketch8
pad8.Length = 5
pad8.Reversed = True
body8 = doc.addObject("PartDesign::Body", "Body007")

sketch9 = body8.newObject("Sketcher::SketchObject", "Sketch008")
sketch9.AttachmentSupport = (doc.getObject("XY_Plane007"), [""])
sketch9.MapMode = "FlatFace"
sketch9.AttachmentOffset = App.Placement(Vector(0, 0, 20), App.Rotation())
add_polygon(sketch9, [(-300, 280), (-296.15733, 263.572484), (-292.674452, 257.024676), (-287.325548, 257.024676), (-283.84267, 263.572484), (-280, 280), (-260, 280), (-256.15733, 263.572484), (-252.674452, 257.024676), (-247.325548, 257.024676), (-243.84267, 263.572484), (-240, 280), (-220, 280), (-216.15733, 263.572484), (-212.674452, 257.024676), (-207.325548, 257.024676), (-203.84267, 263.572484), (-200, 280), (-180, 280), (-176.15733, 263.572484), (-172.674452, 257.024676), (-167.325548, 257.024676), (-163.84267, 263.572484), (-160, 280), (-140, 280), (-136.15733, 263.572484), (-132.674452, 257.024676), (-127.325548, 257.024676), (-123.84267, 263.572484), (-120, 280), (-100, 280), (-96.15733, 263.572484), (-92.674452, 257.024676), (-87.325548, 257.024676), (-83.84267, 263.572484), (-80, 280), (-60, 280), (-56.15733, 263.572484), (-52.674452, 257.024676), (-47.325548, 257.024676), (-43.84267, 263.572484), (-40, 280), (-20, 280), (-16.15733, 263.572484), (-12.674452, 257.024676), (-7.325548, 257.024676), (-3.84267, 263.572484), (0, 280), (20, 280), (23.84267, 263.572484), (27.325548, 257.024676), (32.674452, 257.024676), (36.15733, 263.572484), (40, 280), (60, 280), (63.84267, 263.572484), (67.325548, 257.024676), (72.674452, 257.024676), (76.15733, 263.572484), (80, 280), (100, 280), (103.84267, 263.572484), (107.325548, 257.024676), (112.674452, 257.024676), (116.15733, 263.572484), (120, 280), (140, 280), (143.84267, 263.572484), (147.325548, 257.024676), (152.674452, 257.024676), (156.15733, 263.572484), (160, 280), (180, 280), (183.84267, 263.572484), (187.325548, 257.024676), (192.674452, 257.024676), (196.15733, 263.572484), (200, 280), (220, 280), (223.84267, 263.572484), (227.325548, 257.024676), (232.674452, 257.024676), (236.15733, 263.572484), (240, 280), (265, 280), (265, 305), (-325, 305), (-325, 280)])
sketch9.addConstraint(Sketcher.Constraint("Horizontal", 2))
sketch9.addConstraint(Sketcher.Constraint("Horizontal", 5))
sketch9.addConstraint(Sketcher.Constraint("Horizontal", 8))
sketch9.addConstraint(Sketcher.Constraint("Horizontal", 11))
sketch9.addConstraint(Sketcher.Constraint("Horizontal", 14))
sketch9.addConstraint(Sketcher.Constraint("Horizontal", 17))
sketch9.addConstraint(Sketcher.Constraint("Horizontal", 20))
sketch9.addConstraint(Sketcher.Constraint("Horizontal", 23))
sketch9.addConstraint(Sketcher.Constraint("Horizontal", 26))
sketch9.addConstraint(Sketcher.Constraint("Horizontal", 29))
sketch9.addConstraint(Sketcher.Constraint("Horizontal", 32))
sketch9.addConstraint(Sketcher.Constraint("Horizontal", 35))
sketch9.addConstraint(Sketcher.Constraint("Horizontal", 38))
sketch9.addConstraint(Sketcher.Constraint("Horizontal", 41))
sketch9.addConstraint(Sketcher.Constraint("Horizontal", 44))
sketch9.addConstraint(Sketcher.Constraint("Horizontal", 47))
sketch9.addConstraint(Sketcher.Constraint("Horizontal", 50))
sketch9.addConstraint(Sketcher.Constraint("Horizontal", 53))
sketch9.addConstraint(Sketcher.Constraint("Horizontal", 56))
sketch9.addConstraint(Sketcher.Constraint("Horizontal", 59))
sketch9.addConstraint(Sketcher.Constraint("Horizontal", 62))
sketch9.addConstraint(Sketcher.Constraint("Horizontal", 65))
sketch9.addConstraint(Sketcher.Constraint("Horizontal", 68))
sketch9.addConstraint(Sketcher.Constraint("Horizontal", 71))
sketch9.addConstraint(Sketcher.Constraint("Horizontal", 74))
sketch9.addConstraint(Sketcher.Constraint("Horizontal", 77))
sketch9.addConstraint(Sketcher.Constraint("Horizontal", 80))
sketch9.addConstraint(Sketcher.Constraint("Horizontal", 83))
sketch9.addConstraint(Sketcher.Constraint("Vertical", 84))
sketch9.addConstraint(Sketcher.Constraint("Horizontal", 85))
sketch9.addConstraint(Sketcher.Constraint("Vertical", 86))
sketch9.addConstraint(Sketcher.Constraint("Horizontal", 87))
sketch9.addConstraint(Sketcher.Constraint("Symmetric", 41, 2, 47, 2, -2))
sketch9.addConstraint(Sketcher.Constraint("Symmetric", 40, 2, 52, 2, -2))
sketch9.addConstraint(Sketcher.Constraint("Symmetric", 35, 2, 53, 2, -2))
sketch9.addConstraint(Sketcher.Constraint("Symmetric", 34, 2, 58, 2, -2))
sketch9.addConstraint(Sketcher.Constraint("Symmetric", 29, 2, 59, 2, -2))
sketch9.addConstraint(Sketcher.Constraint("Symmetric", 28, 2, 64, 2, -2))
sketch9.addConstraint(Sketcher.Constraint("Symmetric", 23, 2, 65, 2, -2))
sketch9.addConstraint(Sketcher.Constraint("Symmetric", 22, 2, 70, 2, -2))
sketch9.addConstraint(Sketcher.Constraint("Symmetric", 17, 2, 71, 2, -2))
sketch9.addConstraint(Sketcher.Constraint("Symmetric", 16, 2, 76, 2, -2))
sketch9.addConstraint(Sketcher.Constraint("Symmetric", 11, 2, 77, 2, -2))
sketch9.addConstraint(Sketcher.Constraint("Symmetric", 10, 2, 82, 2, -2))
sketch9.addConstraint(Sketcher.Constraint("PointOnObject", 46, 2, -2))
sketch9.addConstraint(Sketcher.Constraint("Parallel", 0, 6))
sketch9.addConstraint(Sketcher.Constraint("Parallel", 1, 7))
sketch9.addConstraint(Sketcher.Constraint("Parallel", 3, 9))
sketch9.addConstraint(Sketcher.Constraint("Parallel", 4, 10))
sketch9.addConstraint(Sketcher.Constraint("Parallel", 6, 12))
sketch9.addConstraint(Sketcher.Constraint("Parallel", 7, 13))
sketch9.addConstraint(Sketcher.Constraint("Parallel", 9, 15))
sketch9.addConstraint(Sketcher.Constraint("Parallel", 10, 16))
sketch9.addConstraint(Sketcher.Constraint("Parallel", 12, 18))
sketch9.addConstraint(Sketcher.Constraint("Parallel", 13, 19))
sketch9.addConstraint(Sketcher.Constraint("Parallel", 15, 21))
sketch9.addConstraint(Sketcher.Constraint("Parallel", 16, 22))
sketch9.addConstraint(Sketcher.Constraint("Parallel", 18, 24))
sketch9.addConstraint(Sketcher.Constraint("Parallel", 19, 25))
sketch9.addConstraint(Sketcher.Constraint("Parallel", 21, 27))
sketch9.addConstraint(Sketcher.Constraint("Parallel", 22, 28))
sketch9.addConstraint(Sketcher.Constraint("Parallel", 24, 30))
sketch9.addConstraint(Sketcher.Constraint("Parallel", 25, 31))
sketch9.addConstraint(Sketcher.Constraint("Parallel", 27, 33))
sketch9.addConstraint(Sketcher.Constraint("Parallel", 28, 34))
sketch9.addConstraint(Sketcher.Constraint("Parallel", 30, 36))
sketch9.addConstraint(Sketcher.Constraint("Parallel", 31, 37))
sketch9.addConstraint(Sketcher.Constraint("Parallel", 33, 39))
sketch9.addConstraint(Sketcher.Constraint("Parallel", 34, 40))
sketch9.addConstraint(Sketcher.Constraint("Parallel", 36, 42))
sketch9.addConstraint(Sketcher.Constraint("Parallel", 37, 43))
sketch9.addConstraint(Sketcher.Constraint("Parallel", 39, 45))
sketch9.addConstraint(Sketcher.Constraint("Parallel", 40, 46))
sketch9.addConstraint(Sketcher.Constraint("Parallel", 42, 48))
sketch9.addConstraint(Sketcher.Constraint("Parallel", 43, 49))
sketch9.addConstraint(Sketcher.Constraint("Parallel", 45, 51))
sketch9.addConstraint(Sketcher.Constraint("Parallel", 46, 52))
sketch9.addConstraint(Sketcher.Constraint("Parallel", 48, 54))
sketch9.addConstraint(Sketcher.Constraint("Parallel", 49, 55))
sketch9.addConstraint(Sketcher.Constraint("Parallel", 51, 57))
sketch9.addConstraint(Sketcher.Constraint("Parallel", 52, 58))
sketch9.addConstraint(Sketcher.Constraint("Parallel", 54, 60))
sketch9.addConstraint(Sketcher.Constraint("Parallel", 55, 61))
sketch9.addConstraint(Sketcher.Constraint("Parallel", 57, 63))
sketch9.addConstraint(Sketcher.Constraint("Parallel", 58, 64))
sketch9.addConstraint(Sketcher.Constraint("Parallel", 60, 66))
sketch9.addConstraint(Sketcher.Constraint("Parallel", 61, 67))
sketch9.addConstraint(Sketcher.Constraint("Parallel", 63, 69))
sketch9.addConstraint(Sketcher.Constraint("Parallel", 64, 70))
sketch9.addConstraint(Sketcher.Constraint("Parallel", 66, 72))
sketch9.addConstraint(Sketcher.Constraint("Parallel", 67, 73))
sketch9.addConstraint(Sketcher.Constraint("Parallel", 69, 75))
sketch9.addConstraint(Sketcher.Constraint("Parallel", 70, 76))
sketch9.addConstraint(Sketcher.Constraint("Parallel", 72, 78))
sketch9.addConstraint(Sketcher.Constraint("Parallel", 73, 79))
sketch9.addConstraint(Sketcher.Constraint("Parallel", 75, 81))
sketch9.addConstraint(Sketcher.Constraint("Parallel", 76, 82))
sketch9.addConstraint(Sketcher.Constraint("Horizontal", 0, 2, 3, 2))
sketch9.addConstraint(Sketcher.Constraint("Horizontal", 3, 2, 6, 2))
sketch9.addConstraint(Sketcher.Constraint("Horizontal", 2, 2, 7, 2))
sketch9.addConstraint(Sketcher.Constraint("Horizontal", 6, 2, 9, 2))
sketch9.addConstraint(Sketcher.Constraint("Horizontal", 5, 2, 10, 2))
sketch9.addConstraint(Sketcher.Constraint("Horizontal", 9, 2, 12, 2))
sketch9.addConstraint(Sketcher.Constraint("Horizontal", 8, 2, 13, 2))
sketch9.addConstraint(Sketcher.Constraint("Horizontal", 12, 2, 15, 2))
sketch9.addConstraint(Sketcher.Constraint("Horizontal", 15, 2, 18, 2))
sketch9.addConstraint(Sketcher.Constraint("Horizontal", 14, 2, 19, 2))
sketch9.addConstraint(Sketcher.Constraint("Horizontal", 18, 2, 21, 2))
sketch9.addConstraint(Sketcher.Constraint("Horizontal", 21, 2, 24, 2))
sketch9.addConstraint(Sketcher.Constraint("Horizontal", 20, 2, 25, 2))
sketch9.addConstraint(Sketcher.Constraint("Horizontal", 24, 2, 27, 2))
sketch9.addConstraint(Sketcher.Constraint("Horizontal", 27, 2, 30, 2))
sketch9.addConstraint(Sketcher.Constraint("Horizontal", 26, 2, 31, 2))
sketch9.addConstraint(Sketcher.Constraint("Horizontal", 30, 2, 33, 2))
sketch9.addConstraint(Sketcher.Constraint("Horizontal", 33, 2, 36, 2))
sketch9.addConstraint(Sketcher.Constraint("Horizontal", 32, 2, 37, 2))
sketch9.addConstraint(Sketcher.Constraint("Horizontal", 36, 2, 39, 2))
sketch9.addConstraint(Sketcher.Constraint("Horizontal", 39, 2, 42, 2))
sketch9.addConstraint(Sketcher.Constraint("Horizontal", 38, 2, 43, 2))
sketch9.addConstraint(Sketcher.Constraint("Horizontal", 42, 2, 45, 2))
sketch9.addConstraint(Sketcher.Constraint("Horizontal", 45, 2, 48, 2))
sketch9.addConstraint(Sketcher.Constraint("Horizontal", 44, 2, 49, 2))
sketch9.addConstraint(Sketcher.Constraint("Horizontal", 48, 2, 51, 2))
sketch9.addConstraint(Sketcher.Constraint("Horizontal", 51, 2, 54, 2))
sketch9.addConstraint(Sketcher.Constraint("Horizontal", 50, 2, 55, 2))
sketch9.addConstraint(Sketcher.Constraint("Horizontal", 54, 2, 57, 2))
sketch9.addConstraint(Sketcher.Constraint("Horizontal", 57, 2, 60, 2))
sketch9.addConstraint(Sketcher.Constraint("Horizontal", 56, 2, 61, 2))
sketch9.addConstraint(Sketcher.Constraint("Horizontal", 60, 2, 63, 2))
sketch9.addConstraint(Sketcher.Constraint("Horizontal", 63, 2, 66, 2))
sketch9.addConstraint(Sketcher.Constraint("Horizontal", 62, 2, 67, 2))
sketch9.addConstraint(Sketcher.Constraint("Horizontal", 66, 2, 69, 2))
sketch9.addConstraint(Sketcher.Constraint("Horizontal", 69, 2, 72, 2))
sketch9.addConstraint(Sketcher.Constraint("Horizontal", 68, 2, 73, 2))
sketch9.addConstraint(Sketcher.Constraint("Horizontal", 72, 2, 75, 2))
sketch9.addConstraint(Sketcher.Constraint("Horizontal", 75, 2, 78, 2))
sketch9.addConstraint(Sketcher.Constraint("Horizontal", 74, 2, 79, 2))
sketch9.addConstraint(Sketcher.Constraint("Horizontal", 78, 2, 81, 2))
sketch9.addConstraint(Sketcher.Constraint("Horizontal", 83, 2, 86, 2))
sketch9.addConstraint(Sketcher.Constraint("Equal", 2, 8))
sketch9.addConstraint(Sketcher.Constraint("Equal", 5, 11))
sketch9.addConstraint(Sketcher.Constraint("Equal", 8, 14))
sketch9.addConstraint(Sketcher.Constraint("Equal", 11, 17))
sketch9.addConstraint(Sketcher.Constraint("Equal", 14, 20))
sketch9.addConstraint(Sketcher.Constraint("Equal", 17, 23))
sketch9.addConstraint(Sketcher.Constraint("Equal", 20, 26))
sketch9.addConstraint(Sketcher.Constraint("Equal", 23, 29))
sketch9.addConstraint(Sketcher.Constraint("Equal", 26, 32))
sketch9.addConstraint(Sketcher.Constraint("Equal", 29, 35))
sketch9.addConstraint(Sketcher.Constraint("Equal", 32, 38))
sketch9.addConstraint(Sketcher.Constraint("Equal", 35, 41))
sketch9.addConstraint(Sketcher.Constraint("Equal", 38, 44))
sketch9.addConstraint(Sketcher.Constraint("Equal", 41, 47))
sketch9.addConstraint(Sketcher.Constraint("Equal", 83, 87))
sketch9.addConstraint(Sketcher.Constraint("Equal", 87, 84))
sketch9.addConstraint(Sketcher.Constraint("Equal", 1, 3))
sketch9.addConstraint(Sketcher.Constraint("Equal", 0, 4))
sketch9.addConstraint(Sketcher.Constraint("DistanceX", 5, 1, 5, 2, Q("20 mm")))
sketch9.addConstraint(Sketcher.Constraint("DistanceX", 83, 1, 83, 2, Q("25 mm")))
sketch9.addConstraint(Sketcher.Constraint("DistanceY", -1, 1, 4, 2, Q("280 mm")))
sketch9.addConstraint(Sketcher.Constraint("DistanceX", 2, 1, 2, 2, Q("5.348904 mm")))
sketch9.addConstraint(Sketcher.Constraint("DistanceX", 0, 2, -1, 1, Q("296.15733 mm")))
sketch9.addConstraint(Sketcher.Constraint("Distance", 0, Q("16.870963 mm")))
sketch9.addConstraint(Sketcher.Constraint("Distance", 1, Q("7.416484 mm")))
pad9 = body8.newObject("PartDesign::Pad", "Pad008")
pad9.Profile = sketch9
pad9.Length = 5
pad9.Reversed = True
body.Visibility = False
body2.Visibility = False
body3.Visibility = False
body4.Visibility = False
body5.Visibility = False
body6.Visibility = False
body8.Visibility = False

doc.recompute()
